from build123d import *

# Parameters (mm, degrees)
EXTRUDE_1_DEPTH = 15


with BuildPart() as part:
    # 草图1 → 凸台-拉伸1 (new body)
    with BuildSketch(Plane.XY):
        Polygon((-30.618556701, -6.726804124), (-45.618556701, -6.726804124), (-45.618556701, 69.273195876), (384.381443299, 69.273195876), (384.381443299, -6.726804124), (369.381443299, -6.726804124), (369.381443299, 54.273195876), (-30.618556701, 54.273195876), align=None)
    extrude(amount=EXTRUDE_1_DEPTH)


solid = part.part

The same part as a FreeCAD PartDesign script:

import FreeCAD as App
import Part
import Sketcher

doc = App.newDocument("Part")
body = doc.addObject("PartDesign::Body", "Body")

# Sketch on XY plane
sketch1 = body.newObject("Sketcher::SketchObject", "Sketch")
sketch1.AttachmentSupport = (doc.getObject("XY_Plane"), [""])
sketch1.MapMode = "FlatFace"
sketch1.addGeometry([
    Part.LineSegment(App.Vector(-46, -7, 0), App.Vector(-31, -7, 0)),  # 0
    Part.LineSegment(App.Vector(-31, -7, 0), App.Vector(-31, 54, 0)),  # 1
    Part.LineSegment(App.Vector(-31, 54, 0), App.Vector(369, 54, 0)),  # 2
    Part.LineSegment(App.Vector(369, 54, 0), App.Vector(369, -7, 0)),  # 3
    Part.LineSegment(App.Vector(369, -7, 0), App.Vector(384, -7, 0)),  # 4
    Part.LineSegment(App.Vector(384, -7, 0), App.Vector(384, 69, 0)),  # 5
    Part.LineSegment(App.Vector(384, 69, 0), App.Vector(-46, 69, 0)),  # 6
    Part.LineSegment(App.Vector(-46, 69, 0), App.Vector(-46, -7, 0)),  # 7
], False)
sketch1.addConstraint([
    Sketcher.Constraint("Coincident", 0, 2, 1, 1),
    Sketcher.Constraint("Coincident", 1, 2, 2, 1),
    Sketcher.Constraint("Coincident", 2, 2, 3, 1),
    Sketcher.Constraint("Coincident", 3, 2, 4, 1),
    Sketcher.Constraint("Coincident", 4, 2, 5, 1),
    Sketcher.Constraint("Coincident", 5, 2, 6, 1),
    Sketcher.Constraint("Coincident", 6, 2, 7, 1),
    Sketcher.Constraint("Coincident", 7, 2, 0, 1),
    Sketcher.Constraint("Horizontal", 0),
    Sketcher.Constraint("Vertical", 1),
    Sketcher.Constraint("Horizontal", 2),
    Sketcher.Constraint("Vertical", 3),
    Sketcher.Constraint("Horizontal", 4),
    Sketcher.Constraint("Vertical", 5),
    Sketcher.Constraint("Horizontal", 6),
    Sketcher.Constraint("Vertical", 7),
    Sketcher.Constraint("Horizontal", 0, 2, 3, 2),
    Sketcher.Constraint("Equal", 0, 4),
    Sketcher.Constraint("DistanceX", 0, 1, 0, 2, 15.0),
    Sketcher.Constraint("DistanceX", 2, 1, 2, 2, 400.0),
    Sketcher.Constraint("DistanceY", 1, 1, 1, 2, 61.0),
    Sketcher.Constraint("DistanceY", 5, 1, 5, 2, 76.0),
    Sketcher.Constraint("DistanceX", 0, 2, -1, 1, 30.618557),
    Sketcher.Constraint("DistanceY", 0, 2, -1, 1, 6.726804),
])
pad1 = body.newObject("PartDesign::Pad", "Pad")
pad1.Profile = sketch1
pad1.Length = 15

doc.recompute()
